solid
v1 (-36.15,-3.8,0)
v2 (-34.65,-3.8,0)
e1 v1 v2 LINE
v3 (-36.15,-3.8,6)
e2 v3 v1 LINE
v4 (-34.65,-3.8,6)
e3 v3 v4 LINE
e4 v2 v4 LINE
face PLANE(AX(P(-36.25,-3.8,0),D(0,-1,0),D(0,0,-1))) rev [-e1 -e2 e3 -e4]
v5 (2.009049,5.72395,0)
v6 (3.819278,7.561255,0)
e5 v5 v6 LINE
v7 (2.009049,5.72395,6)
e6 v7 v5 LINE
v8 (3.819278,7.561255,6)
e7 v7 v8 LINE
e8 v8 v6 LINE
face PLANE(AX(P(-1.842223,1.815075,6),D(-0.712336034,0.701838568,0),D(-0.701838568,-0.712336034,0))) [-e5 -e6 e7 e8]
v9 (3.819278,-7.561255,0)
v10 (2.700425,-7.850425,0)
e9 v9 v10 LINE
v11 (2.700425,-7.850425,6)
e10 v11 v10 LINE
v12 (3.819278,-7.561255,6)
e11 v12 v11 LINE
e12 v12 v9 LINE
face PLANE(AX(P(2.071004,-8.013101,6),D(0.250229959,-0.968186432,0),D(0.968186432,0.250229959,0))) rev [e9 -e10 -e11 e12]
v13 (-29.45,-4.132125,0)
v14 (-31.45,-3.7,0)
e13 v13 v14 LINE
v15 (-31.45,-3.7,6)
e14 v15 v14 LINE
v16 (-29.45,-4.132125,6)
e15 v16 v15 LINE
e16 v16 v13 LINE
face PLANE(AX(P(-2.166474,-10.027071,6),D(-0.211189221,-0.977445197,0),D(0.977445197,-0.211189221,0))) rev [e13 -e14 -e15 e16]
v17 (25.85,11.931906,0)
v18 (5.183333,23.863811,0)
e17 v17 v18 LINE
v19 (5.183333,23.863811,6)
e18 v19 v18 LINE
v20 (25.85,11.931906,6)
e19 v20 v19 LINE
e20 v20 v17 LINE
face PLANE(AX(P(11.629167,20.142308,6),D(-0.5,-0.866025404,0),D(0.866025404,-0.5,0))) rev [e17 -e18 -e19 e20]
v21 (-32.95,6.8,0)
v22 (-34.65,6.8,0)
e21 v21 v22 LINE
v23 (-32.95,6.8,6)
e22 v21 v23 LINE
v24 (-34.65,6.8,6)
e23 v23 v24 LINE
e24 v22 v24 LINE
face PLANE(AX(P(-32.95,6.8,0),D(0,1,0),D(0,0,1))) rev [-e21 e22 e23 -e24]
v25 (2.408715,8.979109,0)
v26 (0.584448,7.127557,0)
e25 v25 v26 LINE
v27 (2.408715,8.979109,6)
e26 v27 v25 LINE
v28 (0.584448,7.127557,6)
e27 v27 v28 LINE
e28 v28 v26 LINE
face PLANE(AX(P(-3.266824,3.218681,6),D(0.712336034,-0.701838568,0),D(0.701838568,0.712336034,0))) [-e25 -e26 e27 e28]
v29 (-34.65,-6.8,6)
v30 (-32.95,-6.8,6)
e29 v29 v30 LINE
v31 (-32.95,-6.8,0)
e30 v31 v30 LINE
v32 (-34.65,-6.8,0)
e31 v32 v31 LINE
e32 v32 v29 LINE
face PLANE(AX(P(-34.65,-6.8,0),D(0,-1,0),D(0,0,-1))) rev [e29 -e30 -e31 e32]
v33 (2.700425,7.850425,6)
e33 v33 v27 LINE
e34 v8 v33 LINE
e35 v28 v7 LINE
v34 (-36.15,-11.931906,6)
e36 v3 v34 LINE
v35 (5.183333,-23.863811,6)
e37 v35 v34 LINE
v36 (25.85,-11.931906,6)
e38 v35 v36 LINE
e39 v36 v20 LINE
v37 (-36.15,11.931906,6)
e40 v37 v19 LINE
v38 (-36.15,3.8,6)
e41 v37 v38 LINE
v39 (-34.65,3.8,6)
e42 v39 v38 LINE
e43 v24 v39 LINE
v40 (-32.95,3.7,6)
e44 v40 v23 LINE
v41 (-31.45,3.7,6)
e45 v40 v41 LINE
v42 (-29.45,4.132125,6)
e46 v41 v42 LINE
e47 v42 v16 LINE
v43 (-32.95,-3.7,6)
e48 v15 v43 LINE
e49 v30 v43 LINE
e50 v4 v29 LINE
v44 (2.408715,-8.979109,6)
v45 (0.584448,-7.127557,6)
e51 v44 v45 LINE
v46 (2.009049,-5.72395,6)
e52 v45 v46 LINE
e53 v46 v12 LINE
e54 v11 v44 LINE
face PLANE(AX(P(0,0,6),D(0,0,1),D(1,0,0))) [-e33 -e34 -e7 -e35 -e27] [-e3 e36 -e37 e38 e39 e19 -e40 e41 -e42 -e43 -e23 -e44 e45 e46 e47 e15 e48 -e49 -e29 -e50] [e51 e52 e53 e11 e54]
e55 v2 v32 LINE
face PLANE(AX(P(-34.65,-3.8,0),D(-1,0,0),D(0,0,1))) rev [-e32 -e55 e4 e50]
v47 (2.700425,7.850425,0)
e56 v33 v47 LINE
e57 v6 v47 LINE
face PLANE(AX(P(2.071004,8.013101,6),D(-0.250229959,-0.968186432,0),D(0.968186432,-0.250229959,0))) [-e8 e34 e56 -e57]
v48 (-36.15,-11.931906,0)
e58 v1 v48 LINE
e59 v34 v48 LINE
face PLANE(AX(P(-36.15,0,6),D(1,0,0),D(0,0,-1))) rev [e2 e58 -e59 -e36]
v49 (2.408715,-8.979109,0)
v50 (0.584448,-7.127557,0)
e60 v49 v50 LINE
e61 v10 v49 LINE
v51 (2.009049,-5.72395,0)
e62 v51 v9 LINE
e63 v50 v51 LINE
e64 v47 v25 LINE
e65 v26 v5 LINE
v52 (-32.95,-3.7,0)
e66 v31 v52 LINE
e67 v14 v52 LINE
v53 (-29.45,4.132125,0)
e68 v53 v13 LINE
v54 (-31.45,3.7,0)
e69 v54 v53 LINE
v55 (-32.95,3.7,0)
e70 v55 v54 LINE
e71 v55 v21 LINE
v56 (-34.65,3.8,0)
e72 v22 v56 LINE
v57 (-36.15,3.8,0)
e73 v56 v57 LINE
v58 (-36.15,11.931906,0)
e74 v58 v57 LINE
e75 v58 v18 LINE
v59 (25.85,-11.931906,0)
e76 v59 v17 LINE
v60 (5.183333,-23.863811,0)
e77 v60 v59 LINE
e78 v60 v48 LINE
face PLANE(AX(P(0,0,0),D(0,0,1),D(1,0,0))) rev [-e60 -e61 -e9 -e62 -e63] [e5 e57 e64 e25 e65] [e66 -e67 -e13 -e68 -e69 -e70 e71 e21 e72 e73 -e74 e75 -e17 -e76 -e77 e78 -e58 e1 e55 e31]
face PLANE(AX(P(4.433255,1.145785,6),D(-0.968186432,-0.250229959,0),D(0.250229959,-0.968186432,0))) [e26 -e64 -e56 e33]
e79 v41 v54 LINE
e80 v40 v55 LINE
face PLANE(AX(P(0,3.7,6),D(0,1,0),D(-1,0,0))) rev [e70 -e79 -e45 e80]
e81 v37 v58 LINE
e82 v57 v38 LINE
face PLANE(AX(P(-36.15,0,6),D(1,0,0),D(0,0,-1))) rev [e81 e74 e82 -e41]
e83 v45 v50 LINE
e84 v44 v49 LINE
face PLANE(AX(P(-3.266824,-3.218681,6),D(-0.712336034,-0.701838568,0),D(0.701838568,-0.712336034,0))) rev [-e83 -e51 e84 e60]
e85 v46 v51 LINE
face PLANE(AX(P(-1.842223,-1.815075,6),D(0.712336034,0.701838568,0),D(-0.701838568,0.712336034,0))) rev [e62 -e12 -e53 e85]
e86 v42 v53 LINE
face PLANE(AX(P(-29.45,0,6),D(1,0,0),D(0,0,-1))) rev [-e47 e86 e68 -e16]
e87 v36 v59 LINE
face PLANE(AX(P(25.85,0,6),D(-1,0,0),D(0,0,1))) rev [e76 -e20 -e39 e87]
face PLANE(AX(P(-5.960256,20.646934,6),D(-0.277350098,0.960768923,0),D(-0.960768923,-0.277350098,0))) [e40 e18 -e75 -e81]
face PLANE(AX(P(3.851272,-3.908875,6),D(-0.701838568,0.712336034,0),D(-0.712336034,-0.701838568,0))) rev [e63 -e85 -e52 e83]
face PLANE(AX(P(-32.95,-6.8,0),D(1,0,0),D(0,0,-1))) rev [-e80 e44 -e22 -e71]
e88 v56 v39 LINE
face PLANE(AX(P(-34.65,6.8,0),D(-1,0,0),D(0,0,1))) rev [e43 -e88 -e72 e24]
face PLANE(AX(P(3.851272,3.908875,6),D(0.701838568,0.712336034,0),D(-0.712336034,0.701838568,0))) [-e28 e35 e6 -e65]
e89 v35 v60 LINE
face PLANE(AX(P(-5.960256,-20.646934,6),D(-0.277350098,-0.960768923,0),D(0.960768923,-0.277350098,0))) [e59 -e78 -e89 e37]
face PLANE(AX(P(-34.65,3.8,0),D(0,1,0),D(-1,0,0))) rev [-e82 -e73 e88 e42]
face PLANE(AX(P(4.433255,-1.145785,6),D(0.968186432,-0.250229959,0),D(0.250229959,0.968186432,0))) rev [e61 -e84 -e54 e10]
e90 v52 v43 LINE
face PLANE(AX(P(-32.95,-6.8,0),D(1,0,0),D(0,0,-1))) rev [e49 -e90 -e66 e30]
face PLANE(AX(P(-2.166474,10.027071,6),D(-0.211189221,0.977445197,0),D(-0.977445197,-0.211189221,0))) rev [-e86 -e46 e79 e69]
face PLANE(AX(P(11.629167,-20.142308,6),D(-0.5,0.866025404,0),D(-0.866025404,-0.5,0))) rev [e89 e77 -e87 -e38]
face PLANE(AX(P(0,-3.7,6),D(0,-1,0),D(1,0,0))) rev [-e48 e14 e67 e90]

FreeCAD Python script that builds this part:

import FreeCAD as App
import Part
import Sketcher

V = App.Vector
Q = App.Units.Quantity


def add_polygon(sketch, points):
    """Adds a closed chain of lines whose ends are joined by coincident constraints."""
    first, n = sketch.GeometryCount, len(points)
    for a, b in zip(points, points[1:] + points[:1]):
        sketch.addGeometry(Part.LineSegment(App.Vector(*a, 0), App.Vector(*b, 0)), False)
    for i in range(n):
        sketch.addConstraint(Sketcher.Constraint("Coincident", first + i, 2, first + (i + 1) % n, 1))

doc = App.newDocument("Part")
body = doc.addObject("PartDesign::Body", "Body")

# Sketch on XY plane
sketch1 = body.newObject("Sketcher::SketchObject", "Sketch")
sketch1.AttachmentSupport = (doc.getObject("XY_Plane"), [""])
sketch1.MapMode = "FlatFace"
add_polygon(sketch1, [(25.9, -11.9), (25.9, 11.9), (5.2, 23.9), (-36.1, 11.9), (-36.1, 3.7), (-31.4, 3.7), (-29.4, 4.1), (-29.4, -4.1), (-31.4, -3.7), (-36.1, -3.7), (-36.1, -11.9), (5.2, -23.9)])  # lines 0-11
add_polygon(sketch1, [(3.8, -7.6), (2.7, -7.9), (2.4, -9), (0.6, -7.1), (2, -5.7)])  # lines 12-16
add_polygon(sketch1, [(2.4, 9), (2.7, 7.9), (3.8, 7.6), (2, 5.7), (0.6, 7.1)])  # lines 17-21
sketch1.addConstraint([
    Sketcher.Constraint("Vertical", 0),
    Sketcher.Constraint("Vertical", 3),
    Sketcher.Constraint("Horizontal", 4),
    Sketcher.Constraint("Vertical", 6),
    Sketcher.Constraint("Horizontal", 8),
    Sketcher.Constraint("Vertical", 9),
    Sketcher.Constraint("Symmetric", 4, 2, 7, 2, -1),
    Sketcher.Constraint("Symmetric", 2, 2, 9, 2, -1),
    Sketcher.Constraint("Symmetric", 1, 2, 10, 2, -1),
    Sketcher.Constraint("Symmetric", 12, 2, 17, 2, -1),
    Sketcher.Constraint("Symmetric", 16, 2, 18, 2, -1),
    Sketcher.Constraint("Symmetric", 15, 2, 19, 2, -1),
    Sketcher.Constraint("Symmetric", 14, 2, 20, 2, -1),
    Sketcher.Constraint("Symmetric", 13, 2, 21, 2, -1),
    Sketcher.Constraint("Perpendicular", 14, 15),
    Sketcher.Constraint("Perpendicular", 15, 16),
    Sketcher.Constraint("Perpendicular", 12, 17),
    Sketcher.Constraint("Horizontal", 0, 2, 2, 2),
    Sketcher.Constraint("Horizontal", 9, 2, 11, 2),
    Sketcher.Constraint("Equal", 5, 7),
    Sketcher.Constraint("Angle", 1, Q("150 deg")),
    Sketcher.Constraint("DistanceX", 4, 1, 4, 2, Q("4.7 mm")),
    Sketcher.Constraint("DistanceX", 2, 2, 0, 2, Q("62 mm")),
    Sketcher.Constraint("DistanceX", 4, 2, 5, 2, Q("2 mm")),
    Sketcher.Constraint("DistanceY", -1, 1, 3, 2, Q("3.7 mm")),
    Sketcher.Constraint("DistanceX", -1, 1, 0, 2, Q("25.85 mm")),
    Sketcher.Constraint("Distance", 15, Q("1.9999 mm")),
    Sketcher.Constraint("DistanceY", 0, 1, 0, 2, Q("23.863811 mm")),
    Sketcher.Constraint("DistanceY", 6, 2, 6, 1, Q("8.26425 mm")),
    Sketcher.Constraint("DistanceY", 12, 2, 6, 2, Q("3.718301 mm")),
    Sketcher.Constraint("DistanceY", 10, 2, 13, 2, Q("14.884702 mm")),
    Sketcher.Constraint("DistanceX", 14, 2, 15, 2, Q("1.424601 mm")),
    Sketcher.Constraint("DistanceY", 16, 2, 14, 2, Q("0.433699 mm")),
    Sketcher.Constraint("DistanceY", 15, 2, 19, 2, Q("11.4479 mm")),
    Sketcher.Constraint("Distance", 1, Q("23.863811 mm")),
    Sketcher.Constraint("DistanceX", -1, 1, 15, 2, Q("2.009049 mm")),
])
pad1 = body.newObject("PartDesign::Pad", "Pad")
pad1.Profile = sketch1
pad1.Length = 6

# Sketch on XY plane
sketch2 = body.newObject("Sketcher::SketchObject", "Sketch001")
sketch2.AttachmentSupport = (doc.getObject("XY_Plane"), [""])
sketch2.MapMode = "FlatFace"
sketch2.AttachmentOffset = App.Placement(V(0, 0, 6), App.Rotation())
add_polygon(sketch2, [(-36.2, -3.8), (-34.6, -3.8), (-34.6, -6.8), (-33, -6.8), (-33, 6.8), (-34.6, 6.8), (-34.6, 3.8), (-36.2, 3.8)])  # lines 0-7
sketch2.addConstraint([
    Sketcher.Constraint("Horizontal", 0),
    Sketcher.Constraint("Vertical", 1),
    Sketcher.Constraint("Horizontal", 2),
    Sketcher.Constraint("Vertical", 3),
    Sketcher.Constraint("Horizontal", 4),
    Sketcher.Constraint("Vertical", 5),
    Sketcher.Constraint("Horizontal", 6),
    Sketcher.Constraint("Vertical", 7),
    Sketcher.Constraint("Symmetric", 1, 2, 4, 2, -1),
    Sketcher.Constraint("Equal", 1, 5),
    Sketcher.Constraint("DistanceY", 1, 2, 1, 1, Q("3 mm")),
    Sketcher.Constraint("DistanceX", 0, 1, 0, 2, Q("1.6 mm")),
    Sketcher.Constraint("DistanceX", 2, 1, 2, 2, Q("1.7 mm")),
    Sketcher.Constraint("DistanceY", 3, 1, 3, 2, Q("13.6 mm")),
    Sketcher.Constraint("DistanceX", 0, 2, -1, 1, Q("34.65 mm")),
])
pocket1 = body.newObject("PartDesign::Pocket", "Pocket")
pocket1.Profile = sketch2
pocket1.Type = "ThroughAll"

doc.recompute()
